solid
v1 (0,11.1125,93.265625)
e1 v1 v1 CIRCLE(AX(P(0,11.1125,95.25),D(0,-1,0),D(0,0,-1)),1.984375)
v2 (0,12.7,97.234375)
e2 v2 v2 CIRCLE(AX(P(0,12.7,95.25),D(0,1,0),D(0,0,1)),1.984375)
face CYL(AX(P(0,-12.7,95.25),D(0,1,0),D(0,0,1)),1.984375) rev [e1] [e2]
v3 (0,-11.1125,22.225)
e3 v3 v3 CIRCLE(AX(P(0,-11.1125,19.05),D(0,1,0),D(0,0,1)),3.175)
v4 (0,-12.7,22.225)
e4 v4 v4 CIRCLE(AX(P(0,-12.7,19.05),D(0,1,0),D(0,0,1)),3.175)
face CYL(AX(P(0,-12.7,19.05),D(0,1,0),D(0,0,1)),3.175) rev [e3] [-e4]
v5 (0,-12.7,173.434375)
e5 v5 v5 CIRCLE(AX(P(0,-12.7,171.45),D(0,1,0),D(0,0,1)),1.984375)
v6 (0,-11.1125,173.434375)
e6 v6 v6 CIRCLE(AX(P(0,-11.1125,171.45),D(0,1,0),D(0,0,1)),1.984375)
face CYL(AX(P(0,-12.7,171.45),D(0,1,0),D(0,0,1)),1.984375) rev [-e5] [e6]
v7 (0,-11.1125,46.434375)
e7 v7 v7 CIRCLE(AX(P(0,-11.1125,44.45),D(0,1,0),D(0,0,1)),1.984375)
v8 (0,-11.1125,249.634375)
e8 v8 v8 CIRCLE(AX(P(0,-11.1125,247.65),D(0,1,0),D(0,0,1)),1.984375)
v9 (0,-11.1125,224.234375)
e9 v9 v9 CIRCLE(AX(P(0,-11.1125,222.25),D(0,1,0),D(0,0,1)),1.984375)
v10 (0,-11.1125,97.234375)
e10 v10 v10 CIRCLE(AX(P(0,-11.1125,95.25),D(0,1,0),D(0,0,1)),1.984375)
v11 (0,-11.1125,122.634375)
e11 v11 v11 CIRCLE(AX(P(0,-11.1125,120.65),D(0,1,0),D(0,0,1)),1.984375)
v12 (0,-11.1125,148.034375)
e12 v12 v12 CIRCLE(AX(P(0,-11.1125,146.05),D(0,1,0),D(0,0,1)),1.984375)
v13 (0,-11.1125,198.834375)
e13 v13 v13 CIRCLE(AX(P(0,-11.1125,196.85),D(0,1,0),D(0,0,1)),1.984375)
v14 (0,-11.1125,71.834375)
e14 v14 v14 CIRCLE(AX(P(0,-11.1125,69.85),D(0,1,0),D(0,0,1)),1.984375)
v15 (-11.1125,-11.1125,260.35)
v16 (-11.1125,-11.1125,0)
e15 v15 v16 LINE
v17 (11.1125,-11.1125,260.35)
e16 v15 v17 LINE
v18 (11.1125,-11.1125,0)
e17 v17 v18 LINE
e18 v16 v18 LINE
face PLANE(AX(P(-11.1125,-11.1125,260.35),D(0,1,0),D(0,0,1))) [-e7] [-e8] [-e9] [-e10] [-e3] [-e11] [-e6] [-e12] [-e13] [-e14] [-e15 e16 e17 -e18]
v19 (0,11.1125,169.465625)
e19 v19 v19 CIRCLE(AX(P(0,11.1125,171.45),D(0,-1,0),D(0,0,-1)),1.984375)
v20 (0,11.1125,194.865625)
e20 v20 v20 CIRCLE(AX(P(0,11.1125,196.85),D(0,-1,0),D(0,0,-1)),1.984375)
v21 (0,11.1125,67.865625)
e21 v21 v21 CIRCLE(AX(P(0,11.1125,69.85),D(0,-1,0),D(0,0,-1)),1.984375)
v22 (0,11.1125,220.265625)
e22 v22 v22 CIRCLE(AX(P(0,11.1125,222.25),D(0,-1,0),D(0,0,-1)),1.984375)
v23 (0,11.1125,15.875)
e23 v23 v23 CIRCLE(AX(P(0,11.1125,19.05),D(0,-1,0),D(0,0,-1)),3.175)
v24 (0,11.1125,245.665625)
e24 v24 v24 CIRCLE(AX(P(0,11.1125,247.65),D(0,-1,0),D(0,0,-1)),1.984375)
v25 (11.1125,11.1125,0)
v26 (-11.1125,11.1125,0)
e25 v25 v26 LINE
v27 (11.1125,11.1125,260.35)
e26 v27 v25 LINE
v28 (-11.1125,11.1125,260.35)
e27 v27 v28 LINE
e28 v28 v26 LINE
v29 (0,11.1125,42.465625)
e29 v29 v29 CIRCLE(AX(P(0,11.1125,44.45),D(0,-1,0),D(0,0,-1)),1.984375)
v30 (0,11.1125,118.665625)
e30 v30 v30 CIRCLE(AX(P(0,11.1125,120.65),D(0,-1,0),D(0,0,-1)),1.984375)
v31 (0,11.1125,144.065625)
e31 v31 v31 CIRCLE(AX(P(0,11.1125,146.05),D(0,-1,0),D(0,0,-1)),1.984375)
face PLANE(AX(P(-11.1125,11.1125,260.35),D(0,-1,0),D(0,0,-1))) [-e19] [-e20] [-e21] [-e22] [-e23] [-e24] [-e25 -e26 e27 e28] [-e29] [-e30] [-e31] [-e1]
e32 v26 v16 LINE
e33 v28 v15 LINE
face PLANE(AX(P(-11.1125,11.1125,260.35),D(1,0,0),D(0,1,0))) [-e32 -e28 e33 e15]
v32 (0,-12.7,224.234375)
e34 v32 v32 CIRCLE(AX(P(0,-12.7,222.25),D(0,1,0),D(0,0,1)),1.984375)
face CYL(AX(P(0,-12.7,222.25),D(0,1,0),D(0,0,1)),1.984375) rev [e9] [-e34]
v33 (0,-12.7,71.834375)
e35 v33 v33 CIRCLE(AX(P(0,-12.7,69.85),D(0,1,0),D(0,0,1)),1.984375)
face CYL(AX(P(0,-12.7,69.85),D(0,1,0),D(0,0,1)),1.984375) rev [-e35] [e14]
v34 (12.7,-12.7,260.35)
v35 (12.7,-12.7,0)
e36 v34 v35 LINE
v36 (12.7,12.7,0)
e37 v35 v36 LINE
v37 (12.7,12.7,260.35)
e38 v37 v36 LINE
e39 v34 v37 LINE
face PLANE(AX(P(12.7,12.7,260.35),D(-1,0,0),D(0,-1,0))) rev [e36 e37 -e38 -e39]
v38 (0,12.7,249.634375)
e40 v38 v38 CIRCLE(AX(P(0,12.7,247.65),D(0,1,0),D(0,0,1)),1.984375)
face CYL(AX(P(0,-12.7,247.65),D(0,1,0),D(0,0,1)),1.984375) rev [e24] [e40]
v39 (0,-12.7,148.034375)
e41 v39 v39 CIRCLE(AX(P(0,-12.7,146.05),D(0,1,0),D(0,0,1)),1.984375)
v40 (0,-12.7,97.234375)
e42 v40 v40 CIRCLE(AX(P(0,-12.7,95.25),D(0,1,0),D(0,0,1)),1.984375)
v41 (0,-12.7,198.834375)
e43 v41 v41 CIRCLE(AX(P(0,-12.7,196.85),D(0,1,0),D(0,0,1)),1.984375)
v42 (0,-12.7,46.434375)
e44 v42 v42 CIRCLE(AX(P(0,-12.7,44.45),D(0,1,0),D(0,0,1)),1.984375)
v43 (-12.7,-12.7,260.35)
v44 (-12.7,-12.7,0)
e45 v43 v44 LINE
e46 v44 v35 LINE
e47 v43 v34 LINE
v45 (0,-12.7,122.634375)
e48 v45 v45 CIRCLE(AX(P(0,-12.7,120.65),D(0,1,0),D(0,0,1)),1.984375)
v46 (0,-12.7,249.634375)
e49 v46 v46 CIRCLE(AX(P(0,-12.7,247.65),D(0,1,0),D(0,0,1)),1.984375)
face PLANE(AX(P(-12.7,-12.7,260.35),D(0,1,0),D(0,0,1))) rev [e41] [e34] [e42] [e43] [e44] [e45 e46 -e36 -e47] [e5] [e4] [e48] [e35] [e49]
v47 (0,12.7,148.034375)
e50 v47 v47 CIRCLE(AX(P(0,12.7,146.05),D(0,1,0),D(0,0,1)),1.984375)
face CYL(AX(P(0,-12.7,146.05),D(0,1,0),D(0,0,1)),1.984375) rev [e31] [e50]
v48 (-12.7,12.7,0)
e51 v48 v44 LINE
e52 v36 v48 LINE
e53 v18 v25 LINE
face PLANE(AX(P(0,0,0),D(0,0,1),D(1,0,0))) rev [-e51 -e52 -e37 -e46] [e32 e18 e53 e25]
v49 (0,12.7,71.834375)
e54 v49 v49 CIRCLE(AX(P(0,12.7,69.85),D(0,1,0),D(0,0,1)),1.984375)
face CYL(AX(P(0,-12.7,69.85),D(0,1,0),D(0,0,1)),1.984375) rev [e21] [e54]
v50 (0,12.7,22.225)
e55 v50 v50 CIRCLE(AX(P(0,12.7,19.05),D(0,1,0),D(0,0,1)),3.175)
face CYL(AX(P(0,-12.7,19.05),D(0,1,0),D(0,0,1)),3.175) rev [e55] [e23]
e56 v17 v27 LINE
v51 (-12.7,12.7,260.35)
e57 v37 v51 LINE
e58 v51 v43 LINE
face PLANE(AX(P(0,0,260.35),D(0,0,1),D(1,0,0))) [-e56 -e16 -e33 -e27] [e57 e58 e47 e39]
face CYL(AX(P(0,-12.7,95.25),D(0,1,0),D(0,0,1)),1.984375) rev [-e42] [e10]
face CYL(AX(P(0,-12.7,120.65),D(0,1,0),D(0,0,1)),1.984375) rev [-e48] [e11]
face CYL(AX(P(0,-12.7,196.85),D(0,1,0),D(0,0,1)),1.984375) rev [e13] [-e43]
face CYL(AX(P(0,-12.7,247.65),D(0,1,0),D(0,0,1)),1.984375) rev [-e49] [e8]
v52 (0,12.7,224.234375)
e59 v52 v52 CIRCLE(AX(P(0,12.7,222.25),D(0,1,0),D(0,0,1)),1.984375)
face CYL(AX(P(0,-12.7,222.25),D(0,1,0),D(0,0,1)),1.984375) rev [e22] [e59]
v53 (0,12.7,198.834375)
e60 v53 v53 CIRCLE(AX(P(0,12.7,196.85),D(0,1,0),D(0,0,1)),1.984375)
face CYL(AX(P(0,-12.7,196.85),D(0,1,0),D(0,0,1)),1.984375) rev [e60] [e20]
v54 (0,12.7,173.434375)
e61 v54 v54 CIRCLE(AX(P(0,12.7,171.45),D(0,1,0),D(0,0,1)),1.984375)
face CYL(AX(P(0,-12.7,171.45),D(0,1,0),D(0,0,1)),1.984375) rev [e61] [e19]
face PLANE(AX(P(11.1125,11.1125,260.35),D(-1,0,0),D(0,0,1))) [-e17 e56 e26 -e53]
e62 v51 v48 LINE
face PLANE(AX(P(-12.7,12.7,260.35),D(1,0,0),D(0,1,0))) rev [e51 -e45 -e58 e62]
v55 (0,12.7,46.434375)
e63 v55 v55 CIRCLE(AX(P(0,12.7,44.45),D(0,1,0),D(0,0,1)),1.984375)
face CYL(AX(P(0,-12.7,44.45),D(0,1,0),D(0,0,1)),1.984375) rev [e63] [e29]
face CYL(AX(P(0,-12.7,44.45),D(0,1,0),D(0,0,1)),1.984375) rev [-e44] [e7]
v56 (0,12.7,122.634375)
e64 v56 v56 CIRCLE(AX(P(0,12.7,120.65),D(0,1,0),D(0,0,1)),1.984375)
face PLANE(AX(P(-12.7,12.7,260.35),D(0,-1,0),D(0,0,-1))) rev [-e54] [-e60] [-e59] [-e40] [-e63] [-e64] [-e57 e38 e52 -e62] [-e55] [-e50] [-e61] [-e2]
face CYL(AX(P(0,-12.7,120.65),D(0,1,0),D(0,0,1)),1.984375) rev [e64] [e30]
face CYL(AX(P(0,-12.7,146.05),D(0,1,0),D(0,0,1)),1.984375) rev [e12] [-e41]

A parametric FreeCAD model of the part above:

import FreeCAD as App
import Part
import Sketcher
from FreeCAD import Vector
Q = App.Units.Quantity


def add_polygon(sketch, points):
    """Adds a closed chain of lines whose ends are joined by coincident constraints."""
    first, n = sketch.GeometryCount, len(points)
    for a, b in zip(points, points[1:] + points[:1]):
        sketch.addGeometry(Part.LineSegment(App.Vector(*a, 0), App.Vector(*b, 0)), False)
    for i in range(n):
        sketch.addConstraint(Sketcher.Constraint("Coincident", first + i, 2, first + (i + 1) % n, 1))

doc = App.newDocument("Part")
body = doc.addObject("PartDesign::Body", "Body")

# Sketch on XY plane
sketch1 = body.newObject("Sketcher::SketchObject", "Sketch")
sketch1.AttachmentSupport = (doc.getObject("XY_Plane"), [""])
sketch1.MapMode = "FlatFace"
add_polygon(sketch1, [(-13, 13), (-13, -13), (13, -13), (13, 13)])  # lines 0-3
add_polygon(sketch1, [(11, -11), (-11, -11), (-11, 11), (11, 11)])  # lines 4-7
sketch1.addConstraint([
    Sketcher.Constraint("Vertical", 0),
    Sketcher.Constraint("Horizontal", 1),
    Sketcher.Constraint("Vertical", 2),
    Sketcher.Constraint("Horizontal", 3),
    Sketcher.Constraint("Horizontal", 4),
    Sketcher.Constraint("Vertical", 5),
    Sketcher.Constraint("Horizontal", 6),
    Sketcher.Constraint("Vertical", 7),
    Sketcher.Constraint("Symmetric", 0, 2, 2, 2, -1, 1),
    Sketcher.Constraint("Symmetric", 4, 2, 6, 2, -1, 1),
    Sketcher.Constraint("Equal", 3, 0),
    Sketcher.Constraint("Equal", 6, 5),
    Sketcher.Constraint("DistanceX", 1, 1, 1, 2, Q("1 in")),
    Sketcher.Constraint("DistanceX", 4, 2, 4, 1, Q("0.875 in")),
])
pad1 = body.newObject("PartDesign::Pad", "Pad")
pad1.Profile = sketch1
pad1.Length = Q("10.25 in")

# Sketch on XZ plane
sketch2 = body.newObject("Sketcher::SketchObject", "Sketch001")
sketch2.AttachmentSupport = (doc.getObject("XZ_Plane"), [""])
sketch2.MapMode = "FlatFace"
sketch2.AttachmentOffset = App.Placement(Vector(0, 0, -0.5 * 25.4), App.Rotation())
sketch2.addGeometry([
    Part.Circle(Vector(0, 247.7, 0), Vector(0, 0, 1), 2),  # 0
    Part.Circle(Vector(0, 222.2, 0), Vector(0, 0, 1), 2),  # 1
    Part.Circle(Vector(0, 196.8, 0), Vector(0, 0, 1), 2),  # 2
    Part.Circle(Vector(0, 171.4, 0), Vector(0, 0, 1), 2),  # 3
    Part.Circle(Vector(0, 146.1, 0), Vector(0, 0, 1), 2),  # 4
    Part.Circle(Vector(0, 120.7, 0), Vector(0, 0, 1), 2),  # 5
    Part.Circle(Vector(0, 95.2, 0), Vector(0, 0, 1), 2),  # 6
    Part.Circle(Vector(0, 69.8, 0), Vector(0, 0, 1), 2),  # 7
    Part.Circle(Vector(0, 44.5, 0), Vector(0, 0, 1), 2),  # 8
    Part.Circle(Vector(0, -6.3, 0), Vector(0, 0, 1), 2),  # 9
    Part.Circle(Vector(0, -31.8, 0), Vector(0, 0, 1), 2),  # 10
    Part.Circle(Vector(0, 19.1, 0), Vector(0, 0, 1), 3.2),  # 11
], False)
sketch2.addConstraint([
    Sketcher.Constraint("Equal", 0, 1),
    Sketcher.Constraint("Equal", 1, 2),
    Sketcher.Constraint("Equal", 2, 3),
    Sketcher.Constraint("Equal", 3, 4),
    Sketcher.Constraint("Equal", 4, 5),
    Sketcher.Constraint("Equal", 5, 6),
    Sketcher.Constraint("Equal", 6, 7),
    Sketcher.Constraint("Equal", 7, 8),
    Sketcher.Constraint("Equal", 8, 9),
    Sketcher.Constraint("Equal", 9, 10),
    Sketcher.Constraint("PointOnObject", 0, 3, -2),
    Sketcher.Constraint("PointOnObject", 1, 3, -2),
    Sketcher.Constraint("PointOnObject", 2, 3, -2),
    Sketcher.Constraint("PointOnObject", 3, 3, -2),
    Sketcher.Constraint("PointOnObject", 4, 3, -2),
    Sketcher.Constraint("PointOnObject", 5, 3, -2),
    Sketcher.Constraint("PointOnObject", 6, 3, -2),
    Sketcher.Constraint("PointOnObject", 7, 3, -2),
    Sketcher.Constraint("PointOnObject", 8, 3, -2),
    Sketcher.Constraint("PointOnObject", 9, 3, -2),
    Sketcher.Constraint("PointOnObject", 10, 3, -2),
    Sketcher.Constraint("PointOnObject", 11, 3, -2),
    Sketcher.Constraint("Diameter", 11, Q("0.25 in")),
    Sketcher.Constraint("Diameter", 0, Q("0.15625 in")),
    Sketcher.Constraint("DistanceY", 1, 3, 0, 3, Q("1 in")),
    Sketcher.Constraint("DistanceY", 2, 3, 1, 3, Q("1 in")),
    Sketcher.Constraint("DistanceY", 3, 3, 2, 3, Q("1 in")),
    Sketcher.Constraint("DistanceY", 4, 3, 3, 3, Q("1 in")),
    Sketcher.Constraint("DistanceY", 5, 3, 4, 3, Q("1 in")),
    Sketcher.Constraint("DistanceY", 6, 3, 5, 3, Q("1 in")),
    Sketcher.Constraint("DistanceY", 7, 3, 6, 3, Q("1 in")),
    Sketcher.Constraint("DistanceY", 8, 3, 7, 3, Q("1 in")),
    Sketcher.Constraint("DistanceY", 9, 3, 8, 3, Q("2 in")),
    Sketcher.Constraint("DistanceY", 10, 3, 9, 3, Q("1 in")),
    Sketcher.Constraint("DistanceY", 9, 3, 11, 3, Q("1 in")),
    Sketcher.Constraint("DistanceY", -1, 1, 0, 3, Q("9.75 in")),
])
pocket1 = body.newObject("PartDesign::Pocket", "Pocket")
pocket1.Profile = sketch2
pocket1.Type = "ThroughAll"
pocket1.Reversed = True

doc.recompute()
